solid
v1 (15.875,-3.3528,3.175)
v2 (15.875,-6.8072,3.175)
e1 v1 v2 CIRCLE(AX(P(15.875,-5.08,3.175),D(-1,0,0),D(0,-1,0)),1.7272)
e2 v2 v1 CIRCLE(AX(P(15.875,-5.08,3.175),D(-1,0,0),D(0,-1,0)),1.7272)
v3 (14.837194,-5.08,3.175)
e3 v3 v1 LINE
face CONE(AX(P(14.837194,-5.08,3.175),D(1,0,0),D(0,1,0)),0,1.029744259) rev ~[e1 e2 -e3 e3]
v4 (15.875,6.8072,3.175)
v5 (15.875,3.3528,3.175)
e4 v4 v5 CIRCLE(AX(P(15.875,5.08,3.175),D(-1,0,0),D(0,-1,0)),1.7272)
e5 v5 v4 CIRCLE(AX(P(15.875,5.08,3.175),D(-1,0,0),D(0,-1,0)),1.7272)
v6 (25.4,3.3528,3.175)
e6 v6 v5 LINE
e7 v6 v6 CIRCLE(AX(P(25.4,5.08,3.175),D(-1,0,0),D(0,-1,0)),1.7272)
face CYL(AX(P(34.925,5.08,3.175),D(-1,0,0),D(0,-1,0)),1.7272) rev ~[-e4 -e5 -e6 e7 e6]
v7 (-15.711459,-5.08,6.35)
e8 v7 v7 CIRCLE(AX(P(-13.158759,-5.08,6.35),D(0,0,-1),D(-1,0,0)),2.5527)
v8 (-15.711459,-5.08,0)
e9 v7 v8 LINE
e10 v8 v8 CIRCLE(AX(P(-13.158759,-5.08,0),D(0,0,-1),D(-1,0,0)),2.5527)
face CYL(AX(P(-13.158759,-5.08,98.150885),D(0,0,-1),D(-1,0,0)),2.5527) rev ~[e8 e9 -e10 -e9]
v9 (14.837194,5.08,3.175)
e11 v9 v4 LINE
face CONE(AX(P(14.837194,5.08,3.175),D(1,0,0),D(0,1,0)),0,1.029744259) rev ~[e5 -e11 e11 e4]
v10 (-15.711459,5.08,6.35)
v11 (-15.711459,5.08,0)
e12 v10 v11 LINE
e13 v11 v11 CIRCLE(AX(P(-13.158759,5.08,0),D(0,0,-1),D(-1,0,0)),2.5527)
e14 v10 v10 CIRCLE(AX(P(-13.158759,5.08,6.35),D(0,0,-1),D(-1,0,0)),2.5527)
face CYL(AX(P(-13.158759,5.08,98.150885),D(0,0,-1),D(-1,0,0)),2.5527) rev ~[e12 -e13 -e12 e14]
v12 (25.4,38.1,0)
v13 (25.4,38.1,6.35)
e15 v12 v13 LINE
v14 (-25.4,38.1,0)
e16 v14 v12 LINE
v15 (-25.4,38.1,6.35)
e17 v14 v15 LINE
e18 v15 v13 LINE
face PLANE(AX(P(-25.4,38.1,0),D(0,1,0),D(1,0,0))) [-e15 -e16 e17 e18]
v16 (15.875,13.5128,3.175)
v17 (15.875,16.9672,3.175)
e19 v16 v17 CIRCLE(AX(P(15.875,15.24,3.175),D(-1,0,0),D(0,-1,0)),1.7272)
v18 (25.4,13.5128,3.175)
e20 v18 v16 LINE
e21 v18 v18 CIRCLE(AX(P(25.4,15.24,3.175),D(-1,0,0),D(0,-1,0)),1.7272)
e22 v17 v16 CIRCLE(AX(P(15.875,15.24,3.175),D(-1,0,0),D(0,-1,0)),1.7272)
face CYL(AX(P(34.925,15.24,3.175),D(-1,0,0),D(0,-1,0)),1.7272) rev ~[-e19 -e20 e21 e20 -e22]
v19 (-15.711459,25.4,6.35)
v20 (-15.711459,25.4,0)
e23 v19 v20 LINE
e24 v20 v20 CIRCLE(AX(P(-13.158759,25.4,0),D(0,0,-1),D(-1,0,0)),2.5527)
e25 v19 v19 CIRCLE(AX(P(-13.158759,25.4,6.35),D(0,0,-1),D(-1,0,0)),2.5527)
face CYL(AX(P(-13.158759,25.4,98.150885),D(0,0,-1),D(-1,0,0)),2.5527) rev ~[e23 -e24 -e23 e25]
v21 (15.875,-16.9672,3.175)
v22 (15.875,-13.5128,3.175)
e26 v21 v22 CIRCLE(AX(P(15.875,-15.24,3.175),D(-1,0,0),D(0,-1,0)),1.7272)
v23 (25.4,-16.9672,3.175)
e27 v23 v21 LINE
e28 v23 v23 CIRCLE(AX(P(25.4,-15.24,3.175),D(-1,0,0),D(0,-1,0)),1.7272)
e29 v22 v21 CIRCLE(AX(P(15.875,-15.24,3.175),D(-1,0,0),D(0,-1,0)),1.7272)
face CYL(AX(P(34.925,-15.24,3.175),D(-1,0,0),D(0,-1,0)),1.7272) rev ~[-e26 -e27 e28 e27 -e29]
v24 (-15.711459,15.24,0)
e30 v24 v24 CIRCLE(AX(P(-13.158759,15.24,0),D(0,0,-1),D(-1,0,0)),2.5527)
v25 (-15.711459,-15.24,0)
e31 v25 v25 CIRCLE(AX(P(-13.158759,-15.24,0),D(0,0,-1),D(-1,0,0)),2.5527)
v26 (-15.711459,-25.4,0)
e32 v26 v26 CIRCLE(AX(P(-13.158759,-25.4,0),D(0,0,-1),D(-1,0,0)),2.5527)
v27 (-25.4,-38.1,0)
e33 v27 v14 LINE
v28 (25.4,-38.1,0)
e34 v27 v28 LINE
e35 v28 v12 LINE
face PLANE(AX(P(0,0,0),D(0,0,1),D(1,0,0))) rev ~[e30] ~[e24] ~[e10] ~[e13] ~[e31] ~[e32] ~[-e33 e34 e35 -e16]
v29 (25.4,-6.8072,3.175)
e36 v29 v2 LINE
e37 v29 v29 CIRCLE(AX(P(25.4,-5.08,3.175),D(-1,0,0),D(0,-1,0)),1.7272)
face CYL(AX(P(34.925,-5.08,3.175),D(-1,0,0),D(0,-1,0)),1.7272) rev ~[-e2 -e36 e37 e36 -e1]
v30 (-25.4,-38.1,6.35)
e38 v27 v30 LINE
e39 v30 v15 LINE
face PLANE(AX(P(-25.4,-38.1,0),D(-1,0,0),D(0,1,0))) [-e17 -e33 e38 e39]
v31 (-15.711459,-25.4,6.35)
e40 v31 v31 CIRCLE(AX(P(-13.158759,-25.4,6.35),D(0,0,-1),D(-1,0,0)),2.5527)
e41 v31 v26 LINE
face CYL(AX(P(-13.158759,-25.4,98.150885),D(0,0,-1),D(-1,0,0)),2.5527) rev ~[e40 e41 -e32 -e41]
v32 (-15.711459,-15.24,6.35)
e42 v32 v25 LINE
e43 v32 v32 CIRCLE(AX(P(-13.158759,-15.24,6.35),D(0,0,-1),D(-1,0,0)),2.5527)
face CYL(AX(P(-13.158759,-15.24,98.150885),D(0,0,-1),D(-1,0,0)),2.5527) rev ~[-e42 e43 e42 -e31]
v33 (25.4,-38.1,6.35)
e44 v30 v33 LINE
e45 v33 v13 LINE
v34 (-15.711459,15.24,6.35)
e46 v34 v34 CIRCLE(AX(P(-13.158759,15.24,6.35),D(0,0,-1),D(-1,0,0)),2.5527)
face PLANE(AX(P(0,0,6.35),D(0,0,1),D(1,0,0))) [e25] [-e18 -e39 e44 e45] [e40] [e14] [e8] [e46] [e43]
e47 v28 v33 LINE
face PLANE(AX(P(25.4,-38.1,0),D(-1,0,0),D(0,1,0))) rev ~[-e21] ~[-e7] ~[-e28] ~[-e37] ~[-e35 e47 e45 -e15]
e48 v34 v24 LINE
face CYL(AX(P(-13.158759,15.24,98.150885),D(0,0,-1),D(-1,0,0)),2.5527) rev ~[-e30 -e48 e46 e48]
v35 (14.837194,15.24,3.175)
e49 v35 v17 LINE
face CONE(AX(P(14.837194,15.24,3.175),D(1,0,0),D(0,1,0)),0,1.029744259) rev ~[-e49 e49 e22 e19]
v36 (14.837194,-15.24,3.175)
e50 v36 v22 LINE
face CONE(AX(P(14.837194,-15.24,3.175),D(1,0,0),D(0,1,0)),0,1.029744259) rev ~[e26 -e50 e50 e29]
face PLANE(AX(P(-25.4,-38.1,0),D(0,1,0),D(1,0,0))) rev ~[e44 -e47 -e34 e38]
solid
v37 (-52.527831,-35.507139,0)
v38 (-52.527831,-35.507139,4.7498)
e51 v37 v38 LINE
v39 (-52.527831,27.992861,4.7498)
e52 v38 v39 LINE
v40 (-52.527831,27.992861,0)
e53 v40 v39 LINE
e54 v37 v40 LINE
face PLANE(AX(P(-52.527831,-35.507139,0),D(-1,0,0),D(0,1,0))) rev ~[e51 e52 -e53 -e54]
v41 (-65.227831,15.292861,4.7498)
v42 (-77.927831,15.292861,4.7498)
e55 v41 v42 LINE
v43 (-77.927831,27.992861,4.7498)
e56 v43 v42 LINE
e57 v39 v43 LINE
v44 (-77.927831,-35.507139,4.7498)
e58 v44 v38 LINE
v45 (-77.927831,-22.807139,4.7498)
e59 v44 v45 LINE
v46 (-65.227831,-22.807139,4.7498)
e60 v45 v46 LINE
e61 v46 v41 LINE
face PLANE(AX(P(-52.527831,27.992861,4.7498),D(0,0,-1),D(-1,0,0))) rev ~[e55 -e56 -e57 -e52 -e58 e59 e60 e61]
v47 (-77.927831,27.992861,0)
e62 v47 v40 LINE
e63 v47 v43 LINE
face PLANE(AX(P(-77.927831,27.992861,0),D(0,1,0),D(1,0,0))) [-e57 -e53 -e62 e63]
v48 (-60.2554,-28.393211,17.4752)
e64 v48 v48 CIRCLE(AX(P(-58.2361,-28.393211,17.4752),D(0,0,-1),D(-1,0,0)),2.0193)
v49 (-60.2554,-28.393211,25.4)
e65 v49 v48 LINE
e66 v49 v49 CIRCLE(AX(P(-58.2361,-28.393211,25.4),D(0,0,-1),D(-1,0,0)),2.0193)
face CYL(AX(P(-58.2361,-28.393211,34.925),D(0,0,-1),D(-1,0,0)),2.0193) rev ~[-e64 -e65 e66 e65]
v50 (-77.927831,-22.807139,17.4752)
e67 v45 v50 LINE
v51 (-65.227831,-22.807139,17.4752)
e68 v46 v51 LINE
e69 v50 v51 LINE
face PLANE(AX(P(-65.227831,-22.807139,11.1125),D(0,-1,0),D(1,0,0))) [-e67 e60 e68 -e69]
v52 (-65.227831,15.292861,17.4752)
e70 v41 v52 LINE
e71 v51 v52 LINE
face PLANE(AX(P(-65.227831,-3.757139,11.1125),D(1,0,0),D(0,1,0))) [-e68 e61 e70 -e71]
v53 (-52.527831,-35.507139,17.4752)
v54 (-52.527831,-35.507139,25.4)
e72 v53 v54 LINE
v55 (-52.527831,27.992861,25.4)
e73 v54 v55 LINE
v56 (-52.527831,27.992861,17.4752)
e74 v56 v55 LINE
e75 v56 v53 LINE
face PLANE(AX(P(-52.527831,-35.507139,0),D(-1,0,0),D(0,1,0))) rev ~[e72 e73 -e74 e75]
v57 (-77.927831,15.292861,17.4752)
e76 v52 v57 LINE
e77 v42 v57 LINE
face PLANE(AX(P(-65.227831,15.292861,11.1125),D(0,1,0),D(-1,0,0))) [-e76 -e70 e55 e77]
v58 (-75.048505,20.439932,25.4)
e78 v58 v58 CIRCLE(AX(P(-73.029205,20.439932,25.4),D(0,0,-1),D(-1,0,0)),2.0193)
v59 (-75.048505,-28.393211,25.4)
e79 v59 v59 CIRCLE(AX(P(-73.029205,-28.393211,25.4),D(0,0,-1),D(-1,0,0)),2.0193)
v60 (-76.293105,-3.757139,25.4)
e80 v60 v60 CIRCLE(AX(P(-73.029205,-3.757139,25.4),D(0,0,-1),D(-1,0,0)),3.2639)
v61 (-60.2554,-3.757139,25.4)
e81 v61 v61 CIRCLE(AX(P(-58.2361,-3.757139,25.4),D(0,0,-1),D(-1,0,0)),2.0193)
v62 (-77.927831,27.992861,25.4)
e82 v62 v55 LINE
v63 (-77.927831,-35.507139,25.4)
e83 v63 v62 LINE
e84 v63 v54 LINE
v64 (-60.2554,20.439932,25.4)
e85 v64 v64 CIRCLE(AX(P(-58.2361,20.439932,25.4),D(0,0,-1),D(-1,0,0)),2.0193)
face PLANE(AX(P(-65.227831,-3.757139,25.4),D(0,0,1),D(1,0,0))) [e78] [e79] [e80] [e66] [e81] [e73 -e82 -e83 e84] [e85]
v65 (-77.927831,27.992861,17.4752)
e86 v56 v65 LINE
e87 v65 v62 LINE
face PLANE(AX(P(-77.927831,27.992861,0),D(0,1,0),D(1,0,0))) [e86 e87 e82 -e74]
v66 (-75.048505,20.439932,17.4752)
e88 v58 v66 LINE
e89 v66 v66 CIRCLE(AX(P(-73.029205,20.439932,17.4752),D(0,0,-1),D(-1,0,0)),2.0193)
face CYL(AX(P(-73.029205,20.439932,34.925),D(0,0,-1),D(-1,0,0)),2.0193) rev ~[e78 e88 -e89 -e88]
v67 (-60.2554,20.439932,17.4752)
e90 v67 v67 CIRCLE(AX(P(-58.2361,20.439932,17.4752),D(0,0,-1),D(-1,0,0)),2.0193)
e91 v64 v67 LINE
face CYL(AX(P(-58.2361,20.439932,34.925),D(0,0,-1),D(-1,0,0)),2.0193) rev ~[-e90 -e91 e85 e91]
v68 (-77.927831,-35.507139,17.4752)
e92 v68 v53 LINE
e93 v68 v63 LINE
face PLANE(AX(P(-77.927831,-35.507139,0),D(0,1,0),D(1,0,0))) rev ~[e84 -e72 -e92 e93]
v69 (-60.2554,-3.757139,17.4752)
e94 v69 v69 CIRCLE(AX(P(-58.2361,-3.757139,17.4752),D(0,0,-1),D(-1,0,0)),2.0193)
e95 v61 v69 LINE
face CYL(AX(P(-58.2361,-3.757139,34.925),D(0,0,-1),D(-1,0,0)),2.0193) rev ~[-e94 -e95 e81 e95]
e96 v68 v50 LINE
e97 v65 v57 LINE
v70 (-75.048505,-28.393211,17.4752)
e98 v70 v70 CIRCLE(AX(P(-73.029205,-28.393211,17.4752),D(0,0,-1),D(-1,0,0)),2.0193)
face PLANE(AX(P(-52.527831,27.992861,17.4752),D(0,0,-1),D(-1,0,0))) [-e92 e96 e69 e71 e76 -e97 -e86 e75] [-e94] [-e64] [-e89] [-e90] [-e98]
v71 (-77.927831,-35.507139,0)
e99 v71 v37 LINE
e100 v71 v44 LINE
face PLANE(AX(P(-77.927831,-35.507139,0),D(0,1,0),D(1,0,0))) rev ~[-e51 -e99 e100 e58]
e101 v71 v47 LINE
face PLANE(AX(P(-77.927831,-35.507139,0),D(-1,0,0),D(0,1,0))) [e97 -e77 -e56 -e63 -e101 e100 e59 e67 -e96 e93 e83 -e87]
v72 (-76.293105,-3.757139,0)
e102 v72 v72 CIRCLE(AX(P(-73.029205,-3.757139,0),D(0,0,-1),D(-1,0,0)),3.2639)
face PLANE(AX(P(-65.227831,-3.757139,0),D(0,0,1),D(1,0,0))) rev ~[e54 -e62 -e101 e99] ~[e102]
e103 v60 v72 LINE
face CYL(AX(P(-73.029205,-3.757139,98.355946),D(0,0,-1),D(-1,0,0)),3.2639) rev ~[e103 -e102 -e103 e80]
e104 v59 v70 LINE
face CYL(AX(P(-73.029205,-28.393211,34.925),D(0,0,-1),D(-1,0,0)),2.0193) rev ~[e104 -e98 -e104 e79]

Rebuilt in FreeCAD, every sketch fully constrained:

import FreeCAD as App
import Part
import Sketcher
Q = App.Units.Quantity


def add_polygon(sketch, points):
    """Adds a closed chain of lines whose ends are joined by coincident constraints."""
    first, n = sketch.GeometryCount, len(points)
    for a, b in zip(points, points[1:] + points[:1]):
        sketch.addGeometry(Part.LineSegment(App.Vector(*a, 0), App.Vector(*b, 0)), False)
    for i in range(n):
        sketch.addConstraint(Sketcher.Constraint("Coincident", first + i, 2, first + (i + 1) % n, 1))

doc = App.newDocument("Part")
params = doc.addObject("Spreadsheet::Sheet", "Params")
for row, (alias, value) in enumerate([
    ("sketch1_width", "2 in"),
    ("sketch1_height", "3 in"),
    ("pad1_length", "0.25 in"),
    ("sketch2_diameter", "0.201 in"),
    ("hole_diameter", "0.201 in"),
    ("sketch3_diameter", "0.136 in"),
    ("hole2_diameter", "0.136 in"),
    ("hole2_depth", "0.375 in"),
    ("sketch4_width", "1 in"),
    ("sketch4_height", "2.5 in"),
    ("pad2_length", "1 in"),
    ("sketch5_width", "1 in"),
    ("sketch5_height", "0.501 in"),
    ("pocket1_length", "0.5 in"),
    ("sketch6_width", "1 in"),
    ("sketch6_height", "0.501 in"),
    ("pocket2_length", "0.5 in"),
    ("sketch7_width", "1.5 in"),
    ("sketch7_height", "0.501 in"),
    ("pocket3_length", "0.5 in"),
    ("sketch8_diameter", "0.159 in"),
    ("hole3_diameter", "0.159 in"),
    ("hole3_depth", "0.375 in"),
    ("sketch9_diameter", "0.257 in"),
    ("hole4_diameter", "0.257 in"),
], start=1):
    params.set(f"A{row}", alias)
    params.set(f"B{row}", "=" + value)
    params.setAlias(f"B{row}", alias)

body = doc.addObject("PartDesign::Body", "Body")

# Sketch on XY plane
sketch1 = doc.addObject("Sketcher::SketchObject", "Sketch")
body.addObject(sketch1)
sketch1.AttachmentSupport = (doc.XY_Plane, [""])
sketch1.MapMode = "FlatFace"
add_polygon(sketch1, [(-25, 38), (-25, -38), (25, -38), (25, 38)])  # lines 0-3
sketch1.addConstraint([
    Sketcher.Constraint("Vertical", 0),
    Sketcher.Constraint("Horizontal", 1),
    Sketcher.Constraint("Vertical", 2),
    Sketcher.Constraint("Horizontal", 3),
    Sketcher.Constraint("Symmetric", 0, 2, 2, 2, -1, 1),
    Sketcher.Constraint("DistanceX", 1, 1, 1, 2, Q("2 in")),
    Sketcher.Constraint("DistanceY", 0, 2, 0, 1, Q("3 in")),
])
sketch1.setExpression("Constraints[9]", "Params.sketch1_width")
sketch1.setExpression("Constraints[10]", "Params.sketch1_height")
pad1 = doc.addObject("PartDesign::Pad", "Pad")
body.addObject(pad1)
pad1.Profile = sketch1
pad1.setExpression("Length", "Params.pad1_length")

# Sketch on XY plane
sketch2 = doc.addObject("Sketcher::SketchObject", "Sketch001")
body.addObject(sketch2)
sketch2.AttachmentSupport = (doc.XY_Plane, [""])
sketch2.MapMode = "FlatFace"
sketch2.AttachmentOffset = App.Placement(App.Vector(0, 0, 0.25 * 25.4), App.Rotation())
sketch2.addGeometry([
    Part.Circle(App.Vector(-13.2, 25.4, 0), App.Vector(0, 0, 1), 2.6),  # 0
    Part.Circle(App.Vector(-13.2, 15.2, 0), App.Vector(0, 0, 1), 2.6),  # 1
    Part.Circle(App.Vector(-13.2, 5.1, 0), App.Vector(0, 0, 1), 2.6),  # 2
    Part.Circle(App.Vector(-13.2, -5.1, 0), App.Vector(0, 0, 1), 2.6),  # 3
    Part.Circle(App.Vector(-13.2, -15.2, 0), App.Vector(0, 0, 1), 2.6),  # 4
    Part.Circle(App.Vector(-13.2, -25.4, 0), App.Vector(0, 0, 1), 2.6),  # 5
], False)
sketch2.addConstraint([
    Sketcher.Constraint("Equal", 0, 1),
    Sketcher.Constraint("Equal", 1, 2),
    Sketcher.Constraint("Equal", 2, 3),
    Sketcher.Constraint("Equal", 3, 4),
    Sketcher.Constraint("Equal", 4, 5),
    Sketcher.Constraint("Symmetric", 2, 3, 3, 3, -1),
    Sketcher.Constraint("Symmetric", 1, 3, 4, 3, -1),
    Sketcher.Constraint("Symmetric", 0, 3, 5, 3, -1),
    Sketcher.Constraint("Vertical", 0, 3, 1, 3),
    Sketcher.Constraint("Vertical", 1, 3, 2, 3),
    Sketcher.Constraint("Diameter", 0, Q("0.201 in")),
    Sketcher.Constraint("DistanceY", -1, 1, 0, 3, Q("1 in")),
    Sketcher.Constraint("DistanceY", -1, 1, 1, 3, Q("0.6 in")),
    Sketcher.Constraint("DistanceY", -1, 1, 2, 3, Q("0.2 in")),
    Sketcher.Constraint("DistanceX", 0, 3, -1, 1, 13.158759),
])
sketch2.setExpression("Constraints[10]", "Params.sketch2_diameter")
doc.recompute()
hole = doc.addObject("PartDesign::Hole", "Hole")
body.addObject(hole)
hole.Profile = sketch2
hole.ThreadType = "None"
hole.setExpression("Diameter", "Params.hole_diameter")
hole.DepthType = "ThroughAll"

# Sketch on YZ plane
sketch3 = doc.addObject("Sketcher::SketchObject", "Sketch002")
body.addObject(sketch3)
sketch3.AttachmentSupport = (doc.YZ_Plane, [""])
sketch3.MapMode = "FlatFace"
sketch3.AttachmentOffset = App.Placement(App.Vector(0, 0, 1 * 25.4), App.Rotation())
sketch3.addGeometry([
    Part.Circle(App.Vector(-15.2, 3.2, 0), App.Vector(0, 0, 1), 1.7),
    Part.Circle(App.Vector(-5.1, 3.2, 0), App.Vector(0, 0, 1), 1.7),
    Part.Circle(App.Vector(5.1, 3.2, 0), App.Vector(0, 0, 1), 1.7),
    Part.Circle(App.Vector(15.2, 3.2, 0), App.Vector(0, 0, 1), 1.7),
], False)
sketch3.addConstraint([
    Sketcher.Constraint("Equal", 0, 1),
    Sketcher.Constraint("Equal", 1, 2),
    Sketcher.Constraint("Equal", 2, 3),
    Sketcher.Constraint("Symmetric", 1, 3, 2, 3, -2),
    Sketcher.Constraint("Symmetric", 0, 3, 3, 3, -2),
    Sketcher.Constraint("Horizontal", 0, 3, 1, 3),
    Sketcher.Constraint("Diameter", 0, Q("0.136 in")),
    Sketcher.Constraint("DistanceX", 0, 3, -1, 1, Q("0.6 in")),
    Sketcher.Constraint("DistanceX", 1, 3, -1, 1, Q("0.2 in")),
    Sketcher.Constraint("DistanceY", -1, 1, 0, 3, Q("0.125 in")),
])
sketch3.setExpression("Constraints[6]", "Params.sketch3_diameter")
doc.recompute()
hole2 = doc.addObject("PartDesign::Hole", "Hole001")
body.addObject(hole2)
hole2.Profile = sketch3
hole2.ThreadType = "None"
hole2.setExpression("Diameter", "Params.hole2_diameter")
hole2.DepthType = "Dimension"
hole2.setExpression("Depth", "Params.hole2_depth")
hole2.DrillPoint = "Angled"
hole2.DrillPointAngle = 118
body2 = doc.addObject("PartDesign::Body", "Body001")

# Sketch on XY plane
sketch4 = doc.addObject("Sketcher::SketchObject", "Sketch003")
body2.addObject(sketch4)
sketch4.AttachmentSupport = (doc.getObject("XY_Plane001"), [""])
sketch4.MapMode = "FlatFace"
add_polygon(sketch4, [(-78, 28), (-78, -36), (-53, -36), (-53, 28)])  # lines 0-3
sketch4.addConstraint([
    Sketcher.Constraint("Vertical", 0),
    Sketcher.Constraint("Horizontal", 1),
    Sketcher.Constraint("Vertical", 2),
    Sketcher.Constraint("Horizontal", 3),
    Sketcher.Constraint("DistanceX", 1, 1, 1, 2, Q("1 in")),
    Sketcher.Constraint("DistanceY", 0, 2, 0, 1, Q("2.5 in")),
    Sketcher.Constraint("DistanceX", 0, 2, -1, 1, 77.927831),
    Sketcher.Constraint("DistanceY", 0, 2, -1, 1, 35.507139),
])
sketch4.setExpression("Constraints[8]", "Params.sketch4_width")
sketch4.setExpression("Constraints[9]", "Params.sketch4_height")
pad2 = doc.addObject("PartDesign::Pad", "Pad001")
body2.addObject(pad2)
pad2.Profile = sketch4
pad2.setExpression("Length", "Params.pad2_length")

# Sketch on XZ plane
sketch5 = doc.addObject("Sketcher::SketchObject", "Sketch004")
body2.addObject(sketch5)
sketch5.AttachmentSupport = (doc.getObject("XZ_Plane001"), [""])
sketch5.MapMode = "FlatFace"
sketch5.AttachmentOffset = App.Placement(App.Vector(0, 0, 35.507139), App.Rotation())
add_polygon(sketch5, [(-78, 17), (-78, 5), (-53, 5), (-53, 17)])  # lines 0-3
sketch5.addConstraint([
    Sketcher.Constraint("Vertical", 0),
    Sketcher.Constraint("Horizontal", 1),
    Sketcher.Constraint("Vertical", 2),
    Sketcher.Constraint("Horizontal", 3),
    Sketcher.Constraint("DistanceX", 1, 1, 1, 2, Q("1 in")),
    Sketcher.Constraint("DistanceY", 0, 2, 0, 1, Q("0.501 in")),
    Sketcher.Constraint("DistanceY", -1, 1, 0, 2, Q("0.187 in")),
    Sketcher.Constraint("DistanceX", 0, 2, -1, 1, 77.927831),
])
sketch5.setExpression("Constraints[8]", "Params.sketch5_width")
sketch5.setExpression("Constraints[9]", "Params.sketch5_height")
pocket1 = doc.addObject("PartDesign::Pocket", "Pocket")
body2.addObject(pocket1)
pocket1.Profile = sketch5
pocket1.setExpression("Length", "Params.pocket1_length")

# Sketch on XZ plane
sketch6 = doc.addObject("Sketcher::SketchObject", "Sketch005")
body2.addObject(sketch6)
sketch6.AttachmentSupport = (doc.getObject("XZ_Plane001"), [""])
sketch6.MapMode = "FlatFace"
sketch6.AttachmentOffset = App.Placement(App.Vector(0, 0, -27.992861), App.Rotation())
add_polygon(sketch6, [(-53, 17), (-53, 5), (-78, 5), (-78, 17)])  # lines 0-3
sketch6.addConstraint([
    Sketcher.Constraint("Vertical", 0),
    Sketcher.Constraint("Horizontal", 1),
    Sketcher.Constraint("Vertical", 2),
    Sketcher.Constraint("Horizontal", 3),
    Sketcher.Constraint("DistanceX", 1, 2, 1, 1, Q("1 in")),
    Sketcher.Constraint("DistanceY", 0, 2, 0, 1, Q("0.501 in")),
    Sketcher.Constraint("DistanceY", -1, 1, 0, 2, Q("0.187 in")),
    Sketcher.Constraint("DistanceX", 0, 2, -1, 1, 52.527831),
])
sketch6.setExpression("Constraints[8]", "Params.sketch6_width")
sketch6.setExpression("Constraints[9]", "Params.sketch6_height")
pocket2 = doc.addObject("PartDesign::Pocket", "Pocket001")
body2.addObject(pocket2)
pocket2.Profile = sketch6
pocket2.setExpression("Length", "Params.pocket2_length")
pocket2.Reversed = True

# Sketch on YZ plane
sketch7 = doc.addObject("Sketcher::SketchObject", "Sketch006")
body2.addObject(sketch7)
sketch7.AttachmentSupport = (doc.getObject("YZ_Plane001"), [""])
sketch7.MapMode = "FlatFace"
sketch7.AttachmentOffset = App.Placement(App.Vector(0, 0, -52.527831), App.Rotation())
add_polygon(sketch7, [(-23, 17), (-23, 5), (15, 5), (15, 17)])  # lines 0-3
sketch7.addConstraint([
    Sketcher.Constraint("Vertical", 0),
    Sketcher.Constraint("Horizontal", 1),
    Sketcher.Constraint("Vertical", 2),
    Sketcher.Constraint("Horizontal", 3),
    Sketcher.Constraint("DistanceX", 1, 1, 1, 2, Q("1.5 in")),
    Sketcher.Constraint("DistanceY", 0, 2, 0, 1, Q("0.501 in")),
    Sketcher.Constraint("DistanceY", -1, 1, 0, 2, Q("0.187 in")),
    Sketcher.Constraint("DistanceX", 0, 2, -1, 1, 22.807139),
])
sketch7.setExpression("Constraints[8]", "Params.sketch7_width")
sketch7.setExpression("Constraints[9]", "Params.sketch7_height")
pocket3 = doc.addObject("PartDesign::Pocket", "Pocket002")
body2.addObject(pocket3)
pocket3.Profile = sketch7
pocket3.setExpression("Length", "Params.pocket3_length")

# Sketch on XY plane
sketch8 = doc.addObject("Sketcher::SketchObject", "Sketch007")
body2.addObject(sketch8)
sketch8.AttachmentSupport = (doc.getObject("XY_Plane001"), [""])
sketch8.MapMode = "FlatFace"
sketch8.AttachmentOffset = App.Placement(App.Vector(0, 0, 1 * 25.4), App.Rotation())
sketch8.addGeometry([
    Part.Circle(App.Vector(-73, 20.4, 0), App.Vector(0, 0, 1), 2),  # 0
    Part.Circle(App.Vector(-58.2, 20.4, 0), App.Vector(0, 0, 1), 2),  # 1
    Part.Circle(App.Vector(-58.2, -3.8, 0), App.Vector(0, 0, 1), 2),  # 2
    Part.Circle(App.Vector(-58.2, -28.4, 0), App.Vector(0, 0, 1), 2),  # 3
    Part.Circle(App.Vector(-73, -28.4, 0), App.Vector(0, 0, 1), 2),  # 4
], False)
sketch8.addConstraint([
    Sketcher.Constraint("Equal", 0, 1),
    Sketcher.Constraint("Equal", 1, 2),
    Sketcher.Constraint("Equal", 2, 3),
    Sketcher.Constraint("Equal", 3, 4),
    Sketcher.Constraint("Horizontal", 0, 3, 1, 3),
    Sketcher.Constraint("Horizontal", 3, 3, 4, 3),
    Sketcher.Constraint("Vertical", 1, 3, 2, 3),
    Sketcher.Constraint("Vertical", 2, 3, 3, 3),
    Sketcher.Constraint("Vertical", 0, 3, 4, 3),
    Sketcher.Constraint("Diameter", 0, Q("0.159 in")),
    Sketcher.Constraint("DistanceX", 1, 3, -1, 1, 58.2361),
    Sketcher.Constraint("DistanceY", 2, 3, -1, 1, 3.757139),
    Sketcher.Constraint("DistanceY", 3, 3, -1, 1, 28.393211),
    Sketcher.Constraint("DistanceY", 2, 3, 1, 3, 24.197071),
    Sketcher.Constraint("DistanceX", 0, 3, -1, 1, 73.029205),
])
sketch8.setExpression("Constraints[9]", "Params.sketch8_diameter")
doc.recompute()
hole3 = doc.addObject("PartDesign::Hole", "Hole002")
body2.addObject(hole3)
hole3.Profile = sketch8
hole3.ThreadType = "None"
hole3.setExpression("Diameter", "Params.hole3_diameter")
hole3.DepthType = "Dimension"
hole3.setExpression("Depth", "Params.hole3_depth")
hole3.DrillPoint = "Angled"
hole3.DrillPointAngle = 118

# Sketch on XY plane
sketch9 = doc.addObject("Sketcher::SketchObject", "Sketch008")
body2.addObject(sketch9)
sketch9.AttachmentSupport = (doc.getObject("XY_Plane001"), [""])
sketch9.MapMode = "FlatFace"
sketch9.AttachmentOffset = App.Placement(App.Vector(0, 0, 1 * 25.4), App.Rotation())
sketch9.addGeometry(Part.Circle(App.Vector(-73, -3.8, 0), App.Vector(0, 0, 1), 3.3), False)
sketch9.addConstraint([
    Sketcher.Constraint("Diameter", 0, Q("0.257 in")),
    Sketcher.Constraint("DistanceY", 0, 3, -1, 1, 3.757139),
    Sketcher.Constraint("DistanceX", 0, 3, -1, 1, 73.029205),
])
sketch9.setExpression("Constraints[0]", "Params.sketch9_diameter")
doc.recompute()
hole4 = doc.addObject("PartDesign::Hole", "Hole003")
body2.addObject(hole4)
hole4.Profile = sketch9
hole4.ThreadType = "None"
hole4.setExpression("Diameter", "Params.hole4_diameter")
hole4.DepthType = "ThroughAll"

doc.recompute()
